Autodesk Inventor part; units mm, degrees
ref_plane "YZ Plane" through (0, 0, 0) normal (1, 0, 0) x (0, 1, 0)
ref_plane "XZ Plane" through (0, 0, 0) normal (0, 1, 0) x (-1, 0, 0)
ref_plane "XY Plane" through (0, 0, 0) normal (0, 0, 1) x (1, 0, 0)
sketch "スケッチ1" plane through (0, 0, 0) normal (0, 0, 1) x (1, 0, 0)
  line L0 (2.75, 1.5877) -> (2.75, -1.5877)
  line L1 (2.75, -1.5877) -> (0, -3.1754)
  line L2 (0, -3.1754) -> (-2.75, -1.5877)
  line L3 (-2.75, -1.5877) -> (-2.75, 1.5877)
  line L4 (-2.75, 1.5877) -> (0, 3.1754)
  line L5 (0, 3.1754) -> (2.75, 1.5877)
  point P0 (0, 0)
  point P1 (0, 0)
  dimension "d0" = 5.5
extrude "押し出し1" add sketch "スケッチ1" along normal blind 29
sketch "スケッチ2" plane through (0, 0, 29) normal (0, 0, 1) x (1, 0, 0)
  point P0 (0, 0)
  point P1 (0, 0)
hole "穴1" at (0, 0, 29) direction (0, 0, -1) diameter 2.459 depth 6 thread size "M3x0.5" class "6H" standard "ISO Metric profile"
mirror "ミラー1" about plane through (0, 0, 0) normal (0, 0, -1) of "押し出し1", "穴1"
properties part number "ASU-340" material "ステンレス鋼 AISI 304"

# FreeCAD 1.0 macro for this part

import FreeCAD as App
import Part
import Sketcher
Q = App.Units.Quantity

doc = App.newDocument("Part")
body = doc.addObject("PartDesign::Body", "Body")

sketch1 = body.newObject("Sketcher::SketchObject", "Sketch")
sketch1.AttachmentSupport = (doc.getObject("XY_Plane"), [""])
sketch1.MapMode = "FlatFace"
sketch1.addGeometry(Part.LineSegment(App.Vector(2.75, -1.5877, 0), App.Vector(2.75, 1.5877, 0)), False)
sketch1.addGeometry(Part.LineSegment(App.Vector(2.75, 1.5877, 0), App.Vector(0, 3.1754, 0)), False)
sketch1.addGeometry(Part.LineSegment(App.Vector(0, 3.1754, 0), App.Vector(-2.75, 1.5877, 0)), False)
sketch1.addGeometry(Part.LineSegment(App.Vector(-2.75, 1.5877, 0), App.Vector(-2.75, -1.5877, 0)), False)
sketch1.addGeometry(Part.LineSegment(App.Vector(-2.75, -1.5877, 0), App.Vector(0, -3.1754, 0)), False)
sketch1.addGeometry(Part.LineSegment(App.Vector(0, -3.1754, 0), App.Vector(2.75, -1.5877, 0)), False)
sketch1.addConstraint(Sketcher.Constraint("Coincident", 0, 2, 1, 1))
sketch1.addConstraint(Sketcher.Constraint("Coincident", 1, 2, 2, 1))
sketch1.addConstraint(Sketcher.Constraint("Coincident", 2, 2, 3, 1))
sketch1.addConstraint(Sketcher.Constraint("Coincident", 3, 2, 4, 1))
sketch1.addConstraint(Sketcher.Constraint("Coincident", 4, 2, 5, 1))
sketch1.addConstraint(Sketcher.Constraint("Coincident", 5, 2, 0, 1))
sketch1.addConstraint(Sketcher.Constraint("Vertical", 0))
sketch1.addConstraint(Sketcher.Constraint("Vertical", 3))
sketch1.addConstraint(Sketcher.Constraint("Symmetric", 0, 2, 3, 2, -1, 1))
sketch1.addConstraint(Sketcher.Constraint("Symmetric", 1, 2, 4, 2, -1, 1))
sketch1.addConstraint(Sketcher.Constraint("PointOnObject", 1, 2, -2))
sketch1.addConstraint(Sketcher.Constraint("Parallel", 2, 5))
sketch1.addConstraint(Sketcher.Constraint("Horizontal", 0, 2, 2, 2))
sketch1.addConstraint(Sketcher.Constraint("DistanceX", 2, 2, 0, 2, Q("5.5 mm")))
sketch1.addConstraint(Sketcher.Constraint("Angle", 1, Q("150.0002 deg")))
sketch1.addConstraint(Sketcher.Constraint("DistanceY", 0, 1, 0, 2, Q("3.1754 mm")))
pad1 = body.newObject("PartDesign::Pad", "Pad")
pad1.Profile = sketch1
pad1.Length = 29

sketch2 = body.newObject("Sketcher::SketchObject", "Sketch001")
sketch2.AttachmentSupport = (doc.getObject("XY_Plane"), [""])
sketch2.MapMode = "FlatFace"
sketch2.AttachmentOffset = App.Placement(App.Vector(0, 0, 29), App.Rotation())
sketch2.addGeometry(Part.Circle(App.Vector(0, 0, 0), App.Vector(0, 0, 1), 1.2295), False)
sketch2.addConstraint(Sketcher.Constraint("Coincident", 0, 3, -1, 1))
sketch2.addConstraint(Sketcher.Constraint("Diameter", 0, Q("2.459 mm")))
doc.recompute()
hole = body.newObject("PartDesign::Hole", "Hole")
hole.Profile = sketch2
hole.ThreadType = "None"
hole.Diameter = 2.459
hole.DepthType = "Dimension"
hole.Depth = 6
hole.DrillPoint = "Flat"
doc.recompute()

mirrored = body.newObject("PartDesign::Mirrored", "Mirrored")
mirrored.Originals = [pad1, hole]
mirrored.MirrorPlane = (doc.getObject("XY_Plane"), [""])
body.Tip = mirrored

doc.recompute()
